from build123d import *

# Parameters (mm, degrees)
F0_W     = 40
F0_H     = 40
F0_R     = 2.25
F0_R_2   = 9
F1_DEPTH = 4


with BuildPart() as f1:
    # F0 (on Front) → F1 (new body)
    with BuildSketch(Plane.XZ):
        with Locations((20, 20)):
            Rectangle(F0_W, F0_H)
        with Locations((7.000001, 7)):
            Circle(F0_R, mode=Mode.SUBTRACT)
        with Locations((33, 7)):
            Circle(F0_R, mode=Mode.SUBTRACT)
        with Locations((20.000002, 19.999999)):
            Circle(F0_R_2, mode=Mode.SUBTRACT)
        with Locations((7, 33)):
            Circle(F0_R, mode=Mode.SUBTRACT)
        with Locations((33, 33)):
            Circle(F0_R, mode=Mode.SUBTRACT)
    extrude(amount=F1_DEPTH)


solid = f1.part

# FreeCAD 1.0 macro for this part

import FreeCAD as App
import Part
import Sketcher
from FreeCAD import Vector
Q = App.Units.Quantity

doc = App.newDocument("Part")
body = doc.addObject("PartDesign::Body", "Body")

sketch1 = doc.addObject("Sketcher::SketchObject", "Sketch")
body.addObject(sketch1)
sketch1.AttachmentSupport = (doc.XZ_Plane, [""])
sketch1.MapMode = "FlatFace"
sketch1.addGeometry([
    Part.LineSegment(Vector(0, 40, 0), Vector(0, 0, 0)),
    Part.LineSegment(Vector(0, 0, 0), Vector(40, 0, 0)),
    Part.LineSegment(Vector(40, 0, 0), Vector(40, 40, 0)),
    Part.LineSegment(Vector(40, 40, 0), Vector(0, 40, 0)),
    Part.Circle(Vector(7, 7, 0), Vector(0, 0, 1), 2.2),
    Part.Circle(Vector(33, 7, 0), Vector(0, 0, 1), 2.2),
    Part.Circle(Vector(20, 20, 0), Vector(0, 0, 1), 9),
    Part.Circle(Vector(7, 33, 0), Vector(0, 0, 1), 2.2),
    Part.Circle(Vector(33, 33, 0), Vector(0, 0, 1), 2.2),
], False)
sketch1.addConstraint([
    Sketcher.Constraint("Coincident", 0, 2, 1, 1),
    Sketcher.Constraint("Coincident", 1, 2, 2, 1),
    Sketcher.Constraint("Coincident", 2, 2, 3, 1),
    Sketcher.Constraint("Coincident", 3, 2, 0, 1),
    Sketcher.Constraint("Vertical", 0),
    Sketcher.Constraint("Horizontal", 1),
    Sketcher.Constraint("Vertical", 2),
    Sketcher.Constraint("Horizontal", 3),
    Sketcher.Constraint("Coincident", 0, 2, -1, 1),
    Sketcher.Constraint("Equal", 4, 5),
    Sketcher.Constraint("Equal", 5, 7),
    Sketcher.Constraint("Equal", 7, 8),
    Sketcher.Constraint("Horizontal", 4, 3, 5, 3),
    Sketcher.Constraint("Horizontal", 7, 3, 8, 3),
    Sketcher.Constraint("Vertical", 4, 3, 7, 3),
    Sketcher.Constraint("Vertical", 5, 3, 8, 3),
    Sketcher.Constraint("Equal", 3, 0),
    Sketcher.Constraint("Diameter", 6, Q("18 mm")),
    Sketcher.Constraint("Diameter", 4, Q("4.5 mm")),
    Sketcher.Constraint("DistanceX", 1, 1, 1, 2, Q("40 mm")),
    Sketcher.Constraint("DistanceX", -1, 1, 4, 3, Q("7.000001 mm")),
    Sketcher.Constraint("DistanceY", -1, 1, 4, 3, Q("7 mm")),
    Sketcher.Constraint("DistanceX", -1, 1, 5, 3, Q("33 mm")),
    Sketcher.Constraint("DistanceX", -1, 1, 6, 3, Q("20.000002 mm")),
    Sketcher.Constraint("DistanceY", -1, 1, 6, 3, Q("19.999999 mm")),
    Sketcher.Constraint("DistanceY", -1, 1, 7, 3, Q("33 mm")),
])
pad1 = doc.addObject("PartDesign::Pad", "Pad")
body.addObject(pad1)
pad1.Profile = sketch1
pad1.Length = 4

doc.recompute()
